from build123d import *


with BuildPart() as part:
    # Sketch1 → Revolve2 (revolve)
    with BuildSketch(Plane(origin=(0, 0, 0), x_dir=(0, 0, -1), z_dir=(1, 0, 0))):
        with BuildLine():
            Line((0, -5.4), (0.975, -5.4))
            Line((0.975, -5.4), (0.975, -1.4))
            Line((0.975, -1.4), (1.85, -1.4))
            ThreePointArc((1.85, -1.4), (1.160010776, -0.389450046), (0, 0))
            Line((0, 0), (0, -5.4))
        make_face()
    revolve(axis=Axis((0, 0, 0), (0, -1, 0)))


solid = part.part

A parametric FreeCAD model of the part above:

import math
import FreeCAD as App
import Part
import Sketcher
from FreeCAD import Vector
Q = App.Units.Quantity

doc = App.newDocument("Part")
params = doc.addObject("Spreadsheet::Sheet", "Params")
for row, (alias, value) in enumerate([
    ("sketch1_width", "4 mm"),
    ("sketch1_width2", "5.4 mm"),
    ("revolution_angle", "360 deg"),
], start=1):
    params.set(f"A{row}", alias)
    params.set(f"B{row}", "=" + value)
    params.setAlias(f"B{row}", alias)

body = doc.addObject("PartDesign::Body", "Body")

# Sketch on YZ plane
sketch1 = body.newObject("Sketcher::SketchObject", "Sketch")
sketch1.AttachmentSupport = (doc.getObject("YZ_Plane"), [""])
sketch1.MapMode = "FlatFace"
sketch1.addGeometry([
    Part.LineSegment(Vector(-5.4, 0, 0), Vector(-5.4, -1, 0)),  # 0
    Part.LineSegment(Vector(-5.4, -1, 0), Vector(-1.4, -1, 0)),  # 1
    Part.LineSegment(Vector(-1.4, -1, 0), Vector(-1.4, -1.9, 0)),  # 2
    Part.ArcOfCircle(Part.Circle(Vector(-1.9, 0, 0), Vector(0, 0, 1), 1.9), math.radians(-74), math.radians(0)),  # 3
    Part.LineSegment(Vector(0, 0, 0), Vector(-5.4, 0, 0)),  # 4
], False)
sketch1.addConstraint([
    Sketcher.Constraint("Coincident", 0, 2, 1, 1),
    Sketcher.Constraint("Coincident", 1, 2, 2, 1),
    Sketcher.Constraint("Coincident", 2, 2, 3, 1),
    Sketcher.Constraint("Coincident", 3, 2, 4, 1),
    Sketcher.Constraint("Coincident", 4, 2, 0, 1),
    Sketcher.Constraint("Vertical", 0),
    Sketcher.Constraint("Horizontal", 1),
    Sketcher.Constraint("Vertical", 2),
    Sketcher.Constraint("Horizontal", 4),
    Sketcher.Constraint("Coincident", 3, 2, -1, 1),
    Sketcher.Constraint("PointOnObject", 3, 3, -1),
    Sketcher.Constraint("DistanceX", 1, 1, 1, 2, Q("4 mm")),
    Sketcher.Constraint("DistanceX", 4, 2, 4, 1, Q("5.4 mm")),
    Sketcher.Constraint("DistanceY", 0, 2, 0, 1, Q("0.975 mm")),
    Sketcher.Constraint("DistanceY", 2, 2, 2, 1, Q("0.875 mm")),
])
sketch1.setExpression("Constraints[11]", "Params.sketch1_width")
sketch1.setExpression("Constraints[12]", "Params.sketch1_width2")
revolution = body.newObject("PartDesign::Revolution", "Revolution")
revolution.Profile = sketch1
revolution.ReferenceAxis = (sketch1, ["H_Axis"])
revolution.setExpression("Angle", "Params.revolution_angle")

doc.recompute()
